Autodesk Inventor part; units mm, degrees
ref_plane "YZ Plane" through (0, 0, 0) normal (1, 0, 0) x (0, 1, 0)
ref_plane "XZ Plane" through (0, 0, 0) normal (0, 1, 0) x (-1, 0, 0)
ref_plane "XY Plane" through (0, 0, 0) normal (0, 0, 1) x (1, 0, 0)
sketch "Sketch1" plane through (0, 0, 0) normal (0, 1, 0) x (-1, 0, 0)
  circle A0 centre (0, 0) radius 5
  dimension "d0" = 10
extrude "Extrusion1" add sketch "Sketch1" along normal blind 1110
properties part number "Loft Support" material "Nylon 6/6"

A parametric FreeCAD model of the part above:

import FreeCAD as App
import Part
import Sketcher

V = App.Vector

doc = App.newDocument("Part")
body = doc.addObject("PartDesign::Body", "Body")

# Sketch on XZ plane
sketch1 = body.newObject("Sketcher::SketchObject", "Sketch")
sketch1.AttachmentSupport = (doc.getObject("XZ_Plane"), [""])
sketch1.MapMode = "FlatFace"
sketch1.addGeometry(Part.Circle(V(0, 0, 0), V(0, 0, 1), 5), False)
sketch1.addConstraint([
    Sketcher.Constraint("Coincident", 0, 3, -1, 1),
    Sketcher.Constraint("Diameter", 0, 10.0),
])
pad1 = body.newObject("PartDesign::Pad", "Pad")
pad1.Profile = sketch1
pad1.Length = 1110
pad1.Reversed = True

doc.recompute()
